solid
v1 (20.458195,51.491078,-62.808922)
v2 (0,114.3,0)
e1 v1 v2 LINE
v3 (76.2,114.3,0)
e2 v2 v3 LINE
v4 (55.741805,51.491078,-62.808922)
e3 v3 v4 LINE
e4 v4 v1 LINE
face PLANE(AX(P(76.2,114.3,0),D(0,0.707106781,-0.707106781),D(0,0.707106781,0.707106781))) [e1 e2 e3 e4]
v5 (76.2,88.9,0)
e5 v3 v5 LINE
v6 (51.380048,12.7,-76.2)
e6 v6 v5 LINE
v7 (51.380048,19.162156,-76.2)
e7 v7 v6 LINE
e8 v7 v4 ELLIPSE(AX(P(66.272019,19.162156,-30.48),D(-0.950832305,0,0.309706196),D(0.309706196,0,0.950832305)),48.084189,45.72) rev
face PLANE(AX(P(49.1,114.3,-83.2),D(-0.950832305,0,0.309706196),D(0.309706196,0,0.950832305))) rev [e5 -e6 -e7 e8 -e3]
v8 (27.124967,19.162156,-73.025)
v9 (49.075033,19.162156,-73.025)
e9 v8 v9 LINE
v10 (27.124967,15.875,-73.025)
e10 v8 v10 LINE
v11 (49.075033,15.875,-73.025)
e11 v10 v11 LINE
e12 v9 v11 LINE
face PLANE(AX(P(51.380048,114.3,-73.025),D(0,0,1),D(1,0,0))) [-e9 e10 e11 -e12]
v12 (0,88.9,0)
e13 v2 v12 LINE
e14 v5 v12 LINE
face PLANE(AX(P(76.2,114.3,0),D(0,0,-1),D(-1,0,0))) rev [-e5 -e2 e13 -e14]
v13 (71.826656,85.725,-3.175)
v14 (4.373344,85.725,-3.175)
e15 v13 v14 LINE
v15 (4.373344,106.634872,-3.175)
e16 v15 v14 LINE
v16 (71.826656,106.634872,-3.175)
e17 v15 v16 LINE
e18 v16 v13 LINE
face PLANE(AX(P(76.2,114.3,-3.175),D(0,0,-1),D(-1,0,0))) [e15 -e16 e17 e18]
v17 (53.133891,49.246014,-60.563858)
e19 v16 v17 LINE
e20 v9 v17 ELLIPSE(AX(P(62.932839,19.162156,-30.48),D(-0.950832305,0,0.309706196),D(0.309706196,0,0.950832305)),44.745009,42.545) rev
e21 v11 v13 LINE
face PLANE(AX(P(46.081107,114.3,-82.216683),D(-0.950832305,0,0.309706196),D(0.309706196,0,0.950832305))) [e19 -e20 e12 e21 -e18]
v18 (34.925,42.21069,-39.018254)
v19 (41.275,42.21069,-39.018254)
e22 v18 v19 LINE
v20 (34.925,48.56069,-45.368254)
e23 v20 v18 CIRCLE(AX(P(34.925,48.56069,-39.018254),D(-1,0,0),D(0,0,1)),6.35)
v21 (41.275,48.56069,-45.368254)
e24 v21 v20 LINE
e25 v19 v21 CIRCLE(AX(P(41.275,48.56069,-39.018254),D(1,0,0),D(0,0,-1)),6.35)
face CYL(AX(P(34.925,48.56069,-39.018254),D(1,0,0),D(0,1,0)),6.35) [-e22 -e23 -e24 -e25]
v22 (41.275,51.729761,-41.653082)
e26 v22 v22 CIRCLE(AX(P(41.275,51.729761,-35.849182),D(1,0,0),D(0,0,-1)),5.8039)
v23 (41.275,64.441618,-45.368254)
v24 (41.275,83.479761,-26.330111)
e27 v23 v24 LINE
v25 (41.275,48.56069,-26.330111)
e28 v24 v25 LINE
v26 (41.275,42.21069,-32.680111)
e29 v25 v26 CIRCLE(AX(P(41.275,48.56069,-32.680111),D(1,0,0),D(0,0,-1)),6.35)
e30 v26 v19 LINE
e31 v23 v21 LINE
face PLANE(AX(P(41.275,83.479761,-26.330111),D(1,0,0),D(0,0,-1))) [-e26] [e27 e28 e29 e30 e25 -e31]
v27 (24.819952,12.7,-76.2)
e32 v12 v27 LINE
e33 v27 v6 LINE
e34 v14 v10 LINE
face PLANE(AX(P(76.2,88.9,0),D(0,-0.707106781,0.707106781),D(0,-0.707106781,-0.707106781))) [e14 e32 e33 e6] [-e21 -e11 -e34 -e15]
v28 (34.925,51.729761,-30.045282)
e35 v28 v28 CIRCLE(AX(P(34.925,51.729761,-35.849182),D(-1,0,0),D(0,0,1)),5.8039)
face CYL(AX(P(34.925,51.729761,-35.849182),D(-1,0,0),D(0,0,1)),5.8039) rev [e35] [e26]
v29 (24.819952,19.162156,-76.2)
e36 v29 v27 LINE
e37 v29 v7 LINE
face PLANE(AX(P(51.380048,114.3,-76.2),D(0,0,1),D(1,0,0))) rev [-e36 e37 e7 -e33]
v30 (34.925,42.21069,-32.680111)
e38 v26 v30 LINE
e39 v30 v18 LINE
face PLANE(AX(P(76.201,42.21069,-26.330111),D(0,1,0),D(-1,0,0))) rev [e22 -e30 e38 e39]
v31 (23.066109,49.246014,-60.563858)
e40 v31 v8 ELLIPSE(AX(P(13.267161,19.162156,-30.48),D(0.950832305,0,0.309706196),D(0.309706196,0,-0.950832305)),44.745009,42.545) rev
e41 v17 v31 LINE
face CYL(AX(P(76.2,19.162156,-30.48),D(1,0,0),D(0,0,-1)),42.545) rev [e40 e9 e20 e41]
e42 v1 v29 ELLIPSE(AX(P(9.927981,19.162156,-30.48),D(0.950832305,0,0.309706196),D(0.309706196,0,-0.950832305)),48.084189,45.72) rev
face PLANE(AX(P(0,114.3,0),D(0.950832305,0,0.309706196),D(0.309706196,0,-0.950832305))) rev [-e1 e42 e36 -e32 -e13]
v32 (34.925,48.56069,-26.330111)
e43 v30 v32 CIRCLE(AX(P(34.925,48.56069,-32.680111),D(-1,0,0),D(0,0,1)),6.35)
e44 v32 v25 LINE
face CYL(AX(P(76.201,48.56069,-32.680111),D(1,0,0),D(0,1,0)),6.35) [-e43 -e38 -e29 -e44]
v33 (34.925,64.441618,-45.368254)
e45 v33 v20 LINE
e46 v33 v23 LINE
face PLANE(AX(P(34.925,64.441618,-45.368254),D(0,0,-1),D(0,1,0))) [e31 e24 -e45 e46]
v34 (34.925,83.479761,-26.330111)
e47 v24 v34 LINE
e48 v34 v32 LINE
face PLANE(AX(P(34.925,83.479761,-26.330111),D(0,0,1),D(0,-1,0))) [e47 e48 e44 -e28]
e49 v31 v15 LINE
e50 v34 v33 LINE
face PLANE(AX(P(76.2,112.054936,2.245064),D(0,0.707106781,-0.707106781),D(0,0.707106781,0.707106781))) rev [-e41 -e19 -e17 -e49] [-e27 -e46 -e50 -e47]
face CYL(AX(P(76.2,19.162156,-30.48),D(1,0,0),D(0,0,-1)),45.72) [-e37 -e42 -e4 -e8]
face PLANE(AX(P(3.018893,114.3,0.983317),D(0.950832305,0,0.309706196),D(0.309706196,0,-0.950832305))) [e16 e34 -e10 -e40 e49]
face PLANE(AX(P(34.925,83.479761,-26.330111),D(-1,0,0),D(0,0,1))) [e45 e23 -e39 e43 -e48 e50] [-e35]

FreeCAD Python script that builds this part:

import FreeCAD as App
import Part
import Sketcher
from FreeCAD import Vector
Q = App.Units.Quantity


def edges_at(feature, points):
    """Names of the edges that pass closest to the given points."""
    edges = feature.Shape.Edges
    near = lambda p: min(range(len(edges)), key=lambda i: edges[i].distToShape(Part.Vertex(*p))[0])
    return sorted({f"Edge{near(p) + 1}" for p in points})


def faces_at(feature, points):
    """Names of the faces that lie closest to the given points."""
    faces = feature.Shape.Faces
    near = lambda p: min(range(len(faces)), key=lambda i: faces[i].distToShape(Part.Vertex(*p))[0])
    return sorted({f"Face{near(p) + 1}" for p in points})


def add_polygon(sketch, points):
    """Adds a closed chain of lines whose ends are joined by coincident constraints."""
    first, n = sketch.GeometryCount, len(points)
    for a, b in zip(points, points[1:] + points[:1]):
        sketch.addGeometry(Part.LineSegment(App.Vector(*a, 0), App.Vector(*b, 0)), False)
    for i in range(n):
        sketch.addConstraint(Sketcher.Constraint("Coincident", first + i, 2, first + (i + 1) % n, 1))

doc = App.newDocument("Part")
params = doc.addObject("Spreadsheet::Sheet", "Params")
for row, (alias, value) in enumerate([
    ("sketch1_width", "3 in"),
    ("pad1_length", "4.5 in"),
    ("sketch3_width", "3 in"),
    ("sketch3_width2", "3.5 in"),
    ("fillet_radius", "1.8 in"),
    ("thickness_wall", "0.125 in"),
    ("sketch4_width", "0.25 in"),
    ("sketch4_height", "1.06 in"),
    ("sketch5_height", "2 in"),
    ("sketch6_length", "1.06 in"),
    ("sketch7_diameter", "0.457 in"),
    ("hole_diameter", "0.457 in"),
    ("hole_depth", "0.25 in"),
    ("fillet2_radius", "0.25 in"),
], start=1):
    params.set(f"A{row}", alias)
    params.set(f"B{row}", "=" + value)
    params.setAlias(f"B{row}", alias)

body = doc.addObject("PartDesign::Body", "Body")

# Sketch on XZ plane
sketch1 = doc.addObject("Sketcher::SketchObject", "Sketch")
body.addObject(sketch1)
sketch1.AttachmentSupport = (doc.XZ_Plane, [""])
sketch1.MapMode = "FlatFace"
add_polygon(sketch1, [(27, -83), (0, 0), (76, 0), (49, -83)])  # lines 0-3
sketch1.addConstraint(Sketcher.Constraint("Horizontal", 1))
sketch1.addConstraint(Sketcher.Constraint("Horizontal", 3))
sketch1.addConstraint(Sketcher.Constraint("Coincident", 0, 2, -1, 1))
sketch1.addConstraint(Sketcher.Constraint("Equal", 0, 2))
sketch1.addConstraint(Sketcher.Constraint("DistanceX", 1, 1, 1, 2, Q("3 in")))
sketch1.addConstraint(Sketcher.Constraint("DistanceX", 3, 2, 3, 1, 22.0))
sketch1.addConstraint(Sketcher.Constraint("DistanceY", 2, 2, -1, 1, 83.2))
sketch1.setExpression("Constraints[8]", "Params.sketch1_width")
pad1 = doc.addObject("PartDesign::Pad", "Pad")
body.addObject(pad1)
pad1.Profile = sketch1
pad1.setExpression("Length", "Params.pad1_length")
pad1.Reversed = True

# Sketch on XZ plane
sketch2 = doc.addObject("Sketcher::SketchObject", "Sketch001")
body.addObject(sketch2)
sketch2.AttachmentSupport = (doc.XZ_Plane, [""])
sketch2.MapMode = "FlatFace"
add_polygon(sketch2, [(49, -83), (51, -76), (25, -76), (27, -83)])  # lines 0-3
sketch2.addConstraint(Sketcher.Constraint("Horizontal", 1))
sketch2.addConstraint(Sketcher.Constraint("Horizontal", 3))
sketch2.addConstraint(Sketcher.Constraint("Equal", 0, 2))
sketch2.addConstraint(Sketcher.Constraint("DistanceY", 0, 2, -1, 1, Q("3 in")))
sketch2.addConstraint(Sketcher.Constraint("DistanceX", 3, 1, 3, 2, 22.0))
sketch2.addConstraint(Sketcher.Constraint("DistanceX", -1, 1, 2, 2, 27.1))
sketch2.addConstraint(Sketcher.Constraint("DistanceY", 2, 2, -1, 1, 83.2))
sketch2.addConstraint(Sketcher.Constraint("Distance", 0, 7.361971))
pocket1 = doc.addObject("PartDesign::Pocket", "Pocket")
body.addObject(pocket1)
pocket1.Profile = sketch2
pocket1.Type = "ThroughAll"

# Sketch on YZ plane
sketch3 = doc.addObject("Sketcher::SketchObject", "Sketch002")
body.addObject(sketch3)
sketch3.AttachmentSupport = (doc.YZ_Plane, [""])
sketch3.MapMode = "FlatFace"
add_polygon(sketch3, [(114, 0), (38, -76), (114, -76)])  # lines 0-2
add_polygon(sketch3, [(13, -76), (89, 0), (0, 0), (0, -76)])  # lines 3-6
sketch3.addConstraint(Sketcher.Constraint("Horizontal", 1))
sketch3.addConstraint(Sketcher.Constraint("Vertical", 2))
sketch3.addConstraint(Sketcher.Constraint("Horizontal", 4))
sketch3.addConstraint(Sketcher.Constraint("Vertical", 5))
sketch3.addConstraint(Sketcher.Constraint("Horizontal", 6))
sketch3.addConstraint(Sketcher.Constraint("Coincident", 4, 2, -1, 1))
sketch3.addConstraint(Sketcher.Constraint("PointOnObject", 2, 2, -1))
sketch3.addConstraint(Sketcher.Constraint("Parallel", 0, 3))
sketch3.addConstraint(Sketcher.Constraint("Horizontal", 1, 2, 5, 2))
sketch3.addConstraint(Sketcher.Constraint("Equal", 1, 2))
sketch3.addConstraint(Sketcher.Constraint("DistanceX", 1, 1, 1, 2, Q("3 in")))
sketch3.addConstraint(Sketcher.Constraint("DistanceX", 4, 2, 4, 1, Q("3.5 in")))
sketch3.addConstraint(Sketcher.Constraint("DistanceX", 3, 2, 2, 2, Q("1 in")))
sketch3.setExpression("Constraints[17]", "Params.sketch3_width")
sketch3.setExpression("Constraints[18]", "Params.sketch3_width2")
pocket2 = doc.addObject("PartDesign::Pocket", "Pocket001")
body.addObject(pocket2)
pocket2.Profile = sketch3
pocket2.Type = "ThroughAll"
pocket2.Reversed = True
doc.recompute()

fillet = doc.addObject("PartDesign::Fillet", "Fillet")
body.addObject(fillet)
fillet.Base = (pocket2, edges_at(pocket2, [(38.1, 38.1, -76.2)]))
fillet.setExpression("Radius", "Params.fillet_radius")
doc.recompute()

thickness = doc.addObject("PartDesign::Thickness", "Thickness")
body.addObject(thickness)
thickness.Base = (fillet, faces_at(fillet, [(38.1, 50.8, -38.1)]))
thickness.setExpression("Value", "Params.thickness_wall")
thickness.Reversed = True
thickness.Join = "Intersection"

# Sketch on an angled plane
sketch4 = doc.addObject("Sketcher::SketchObject", "Sketch003")
body.addObject(sketch4)
sketch4.Placement = App.Placement(Vector(0, 54.904936, -54.904936), App.Rotation(Vector(1, 0, 0), Vector(0, 0.707106781, 0.707106781), Vector(0, -0.707106781, 0.707106781), "ZXY"))
add_polygon(sketch4, [(35, 40), (35, 13), (41, 13), (41, 40)])  # lines 0-3
sketch4.addConstraint(Sketcher.Constraint("Vertical", 0))
sketch4.addConstraint(Sketcher.Constraint("Horizontal", 1))
sketch4.addConstraint(Sketcher.Constraint("Vertical", 2))
sketch4.addConstraint(Sketcher.Constraint("Horizontal", 3))
sketch4.addConstraint(Sketcher.Constraint("DistanceX", 1, 1, 1, 2, Q("0.25 in")))
sketch4.addConstraint(Sketcher.Constraint("DistanceY", 0, 2, 0, 1, Q("1.06 in")))
sketch4.addConstraint(Sketcher.Constraint("DistanceX", -1, 1, 0, 2, Q("1.375 in")))
sketch4.addConstraint(Sketcher.Constraint("DistanceY", -1, 1, 0, 2, 13.486905))
sketch4.setExpression("Constraints[8]", "Params.sketch4_width")
sketch4.setExpression("Constraints[9]", "Params.sketch4_height")

# Sketch on XY plane
sketch5 = doc.addObject("Sketcher::SketchObject", "Sketch004")
body.addObject(sketch5)
sketch5.AttachmentSupport = (doc.XY_Plane, [""])
sketch5.MapMode = "FlatFace"
sketch5.AttachmentOffset = App.Placement(Vector(0, 0, -35.849182), App.Rotation())
sketch5.addGeometry(Part.LineSegment(Vector(38, 74, 0), Vector(38, 23, 0)), False)
sketch5.addConstraint(Sketcher.Constraint("Vertical", 0))
sketch5.addConstraint(Sketcher.Constraint("DistanceY", 0, 2, 0, 1, Q("2 in")))
sketch5.addConstraint(Sketcher.Constraint("DistanceX", -1, 1, 0, 1, Q("1.5 in")))
sketch5.addConstraint(Sketcher.Constraint("DistanceY", -1, 1, 0, 1, 73.96069))
sketch5.setExpression("Constraints[1]", "Params.sketch5_height")
doc.recompute()

additivepipe = doc.addObject("PartDesign::AdditivePipe", "AdditivePipe")
body.addObject(additivepipe)
additivepipe.Profile = sketch4
additivepipe.Spine = (sketch5, ["Edge1"])

# Sketch on YZ plane
sketch6 = doc.addObject("Sketcher::SketchObject", "Sketch005")
body.addObject(sketch6)
sketch6.AttachmentSupport = (doc.YZ_Plane, [""])
sketch6.MapMode = "FlatFace"
sketch6.AttachmentOffset = App.Placement(Vector(0, 0, 1.375 * 25.4), App.Rotation())
add_polygon(sketch6, [(42, -26), (42, -45), (14, -45), (33, -26)])  # lines 0-3
sketch6.addConstraint(Sketcher.Constraint("Vertical", 0))
sketch6.addConstraint(Sketcher.Constraint("Horizontal", 1))
sketch6.addConstraint(Sketcher.Constraint("Horizontal", 3))
sketch6.addConstraint(Sketcher.Constraint("Angle", 2, Q("45 deg")))
sketch6.addConstraint(Sketcher.Constraint("Distance", 2, Q("1.06 in")))
sketch6.addConstraint(Sketcher.Constraint("DistanceX", 1, 2, 1, 1, 28.569071))
sketch6.addConstraint(Sketcher.Constraint("DistanceX", -1, 1, 0, 2, 42.21069))
sketch6.addConstraint(Sketcher.Constraint("DistanceY", 2, 2, -1, 1, 26.330111))
sketch6.setExpression("Constraints[8]", "Params.sketch6_length")
pocket3 = doc.addObject("PartDesign::Pocket", "Pocket002")
body.addObject(pocket3)
pocket3.Profile = sketch6
pocket3.Type = "UpToFirst"
pocket3.Reversed = True

# Sketch on YZ plane
sketch7 = doc.addObject("Sketcher::SketchObject", "Sketch006")
body.addObject(sketch7)
sketch7.AttachmentSupport = (doc.YZ_Plane, [""])
sketch7.MapMode = "FlatFace"
sketch7.AttachmentOffset = App.Placement(Vector(0, 0, 1.375 * 25.4), App.Rotation())
sketch7.addGeometry(Part.Circle(Vector(52, -36, 0), Vector(0, 0, 1), 6), False)
sketch7.addConstraint(Sketcher.Constraint("Diameter", 0, Q("0.457 in")))
sketch7.addConstraint(Sketcher.Constraint("DistanceX", -1, 1, 0, 3, 51.729761))
sketch7.addConstraint(Sketcher.Constraint("DistanceY", 0, 3, -1, 1, 35.849182))
sketch7.setExpression("Constraints[0]", "Params.sketch7_diameter")
doc.recompute()
hole = doc.addObject("PartDesign::Hole", "Hole")
body.addObject(hole)
hole.Profile = sketch7
hole.ThreadType = "None"
hole.setExpression("Diameter", "Params.hole_diameter")
hole.DepthType = "Dimension"
hole.setExpression("Depth", "Params.hole_depth")
hole.DrillPoint = "Flat"
hole.Reversed = True
doc.recompute()

fillet2 = doc.addObject("PartDesign::Fillet", "Fillet001")
body.addObject(fillet2)
fillet2.Base = (hole, edges_at(hole, [(38.1, 42.211, -26.33), (38.1, 42.211, -45.368)]))
fillet2.setExpression("Radius", "Params.fillet2_radius")

doc.recompute()
